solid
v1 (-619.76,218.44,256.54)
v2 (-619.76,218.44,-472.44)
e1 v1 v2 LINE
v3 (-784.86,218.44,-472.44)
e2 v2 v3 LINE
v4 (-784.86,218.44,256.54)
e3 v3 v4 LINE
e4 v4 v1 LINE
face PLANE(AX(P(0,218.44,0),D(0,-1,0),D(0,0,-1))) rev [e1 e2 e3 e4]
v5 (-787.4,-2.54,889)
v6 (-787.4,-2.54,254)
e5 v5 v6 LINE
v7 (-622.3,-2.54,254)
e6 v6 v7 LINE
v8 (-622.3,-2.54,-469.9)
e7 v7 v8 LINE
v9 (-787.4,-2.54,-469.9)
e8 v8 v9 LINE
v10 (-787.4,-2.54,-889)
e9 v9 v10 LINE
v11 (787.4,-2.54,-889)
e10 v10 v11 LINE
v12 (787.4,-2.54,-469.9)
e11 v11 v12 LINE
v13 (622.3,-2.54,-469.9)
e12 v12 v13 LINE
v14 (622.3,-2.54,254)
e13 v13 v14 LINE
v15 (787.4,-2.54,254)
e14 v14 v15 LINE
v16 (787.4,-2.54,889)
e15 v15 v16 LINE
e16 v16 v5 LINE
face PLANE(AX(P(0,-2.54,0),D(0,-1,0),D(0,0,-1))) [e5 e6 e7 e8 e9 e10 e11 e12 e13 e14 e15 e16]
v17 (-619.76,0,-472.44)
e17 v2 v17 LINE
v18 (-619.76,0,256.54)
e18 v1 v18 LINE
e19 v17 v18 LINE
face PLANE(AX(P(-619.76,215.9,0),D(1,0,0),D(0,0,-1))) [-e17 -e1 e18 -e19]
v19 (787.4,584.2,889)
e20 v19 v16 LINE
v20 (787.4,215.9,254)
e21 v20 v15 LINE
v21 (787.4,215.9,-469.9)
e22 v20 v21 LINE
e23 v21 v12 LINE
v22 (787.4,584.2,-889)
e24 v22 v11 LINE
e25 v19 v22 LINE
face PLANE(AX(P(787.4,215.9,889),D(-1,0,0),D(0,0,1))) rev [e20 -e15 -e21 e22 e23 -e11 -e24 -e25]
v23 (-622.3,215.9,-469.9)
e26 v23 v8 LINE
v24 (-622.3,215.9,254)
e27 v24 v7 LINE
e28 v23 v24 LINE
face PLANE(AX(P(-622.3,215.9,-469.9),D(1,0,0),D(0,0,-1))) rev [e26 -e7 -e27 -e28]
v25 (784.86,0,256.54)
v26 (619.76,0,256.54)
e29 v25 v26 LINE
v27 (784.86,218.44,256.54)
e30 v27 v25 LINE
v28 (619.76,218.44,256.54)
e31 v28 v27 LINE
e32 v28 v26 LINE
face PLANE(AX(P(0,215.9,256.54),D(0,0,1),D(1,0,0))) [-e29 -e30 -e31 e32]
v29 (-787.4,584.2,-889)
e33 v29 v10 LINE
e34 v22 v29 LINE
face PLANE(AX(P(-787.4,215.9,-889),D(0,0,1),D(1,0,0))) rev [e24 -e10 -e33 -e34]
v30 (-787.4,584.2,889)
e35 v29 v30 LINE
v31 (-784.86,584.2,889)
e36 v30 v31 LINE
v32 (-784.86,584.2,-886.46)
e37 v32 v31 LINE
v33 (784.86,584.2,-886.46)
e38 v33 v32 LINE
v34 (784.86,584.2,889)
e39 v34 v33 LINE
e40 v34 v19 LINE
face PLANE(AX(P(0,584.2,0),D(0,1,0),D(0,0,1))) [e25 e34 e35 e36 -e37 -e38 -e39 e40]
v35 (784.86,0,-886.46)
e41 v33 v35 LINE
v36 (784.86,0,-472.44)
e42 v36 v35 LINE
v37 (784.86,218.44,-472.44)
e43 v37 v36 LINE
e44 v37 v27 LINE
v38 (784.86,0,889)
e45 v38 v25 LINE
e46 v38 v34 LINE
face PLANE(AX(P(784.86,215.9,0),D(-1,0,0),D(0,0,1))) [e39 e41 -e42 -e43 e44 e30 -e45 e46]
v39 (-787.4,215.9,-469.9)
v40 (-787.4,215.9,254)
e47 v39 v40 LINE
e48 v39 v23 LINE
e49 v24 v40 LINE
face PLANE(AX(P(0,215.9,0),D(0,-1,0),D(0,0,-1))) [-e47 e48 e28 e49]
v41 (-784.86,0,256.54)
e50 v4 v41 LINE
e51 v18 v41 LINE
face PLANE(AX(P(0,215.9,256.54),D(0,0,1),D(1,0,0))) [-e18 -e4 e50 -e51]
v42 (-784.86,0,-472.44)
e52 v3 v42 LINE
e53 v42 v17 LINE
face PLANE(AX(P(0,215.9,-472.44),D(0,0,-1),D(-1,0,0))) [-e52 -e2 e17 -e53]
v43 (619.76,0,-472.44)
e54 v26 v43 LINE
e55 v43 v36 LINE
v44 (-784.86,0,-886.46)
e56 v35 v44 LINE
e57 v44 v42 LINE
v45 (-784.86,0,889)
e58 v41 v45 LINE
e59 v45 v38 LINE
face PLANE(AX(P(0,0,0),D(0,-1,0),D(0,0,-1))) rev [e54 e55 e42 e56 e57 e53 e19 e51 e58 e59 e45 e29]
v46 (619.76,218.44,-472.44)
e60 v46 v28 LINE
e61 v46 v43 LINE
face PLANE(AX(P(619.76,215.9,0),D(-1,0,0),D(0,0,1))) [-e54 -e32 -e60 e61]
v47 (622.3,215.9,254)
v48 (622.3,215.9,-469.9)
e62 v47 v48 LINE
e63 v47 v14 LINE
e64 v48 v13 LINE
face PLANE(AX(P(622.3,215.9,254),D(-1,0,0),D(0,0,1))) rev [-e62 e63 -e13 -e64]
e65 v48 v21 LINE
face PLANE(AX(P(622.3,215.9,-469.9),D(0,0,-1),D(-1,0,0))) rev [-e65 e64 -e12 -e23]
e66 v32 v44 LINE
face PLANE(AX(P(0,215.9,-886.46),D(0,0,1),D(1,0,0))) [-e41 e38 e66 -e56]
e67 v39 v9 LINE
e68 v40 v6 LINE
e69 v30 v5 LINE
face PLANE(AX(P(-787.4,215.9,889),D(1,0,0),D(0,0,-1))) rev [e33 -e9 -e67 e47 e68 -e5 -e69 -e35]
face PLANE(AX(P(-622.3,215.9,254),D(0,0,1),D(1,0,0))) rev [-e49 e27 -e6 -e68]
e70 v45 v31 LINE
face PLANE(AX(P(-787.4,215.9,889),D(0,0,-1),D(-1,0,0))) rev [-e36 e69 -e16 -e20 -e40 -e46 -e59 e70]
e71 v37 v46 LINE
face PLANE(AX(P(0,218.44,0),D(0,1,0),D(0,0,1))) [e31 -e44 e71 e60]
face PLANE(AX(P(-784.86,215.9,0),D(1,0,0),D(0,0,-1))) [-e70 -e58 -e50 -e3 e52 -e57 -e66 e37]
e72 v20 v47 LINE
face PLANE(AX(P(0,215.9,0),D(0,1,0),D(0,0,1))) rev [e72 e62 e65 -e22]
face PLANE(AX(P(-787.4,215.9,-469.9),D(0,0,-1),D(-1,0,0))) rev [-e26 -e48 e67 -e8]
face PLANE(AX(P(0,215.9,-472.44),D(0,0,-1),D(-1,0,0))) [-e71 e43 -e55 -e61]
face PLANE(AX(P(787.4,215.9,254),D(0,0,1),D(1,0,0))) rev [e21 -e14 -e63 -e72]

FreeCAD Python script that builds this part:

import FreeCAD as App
import Part
import Sketcher
Q = App.Units.Quantity


def add_polygon(sketch, points):
    """Adds a closed chain of lines whose ends are joined by coincident constraints."""
    first, n = sketch.GeometryCount, len(points)
    for a, b in zip(points, points[1:] + points[:1]):
        sketch.addGeometry(Part.LineSegment(App.Vector(*a, 0), App.Vector(*b, 0)), False)
    for i in range(n):
        sketch.addConstraint(Sketcher.Constraint("Coincident", first + i, 2, first + (i + 1) % n, 1))

doc = App.newDocument("Part")
body = doc.addObject("PartDesign::Body", "Body")

# Sketch on XZ plane
sketch1 = body.newObject("Sketcher::SketchObject", "Sketch")
sketch1.AttachmentSupport = (doc.getObject("XZ_Plane"), [""])
sketch1.MapMode = "FlatFace"
add_polygon(sketch1, [(787, -889), (-787, -889), (-787, -470), (-622, -470), (-622, 254), (-787, 254), (-787, 889), (787, 889), (787, 254), (622, 254), (622, -470), (787, -470)])  # lines 0-11
add_polygon(sketch1, [(-785, -886), (785, -886), (785, -472), (620, -472), (620, 257), (785, 257), (785, 886), (-785, 886), (-785, 257), (-620, 257), (-620, -472), (-785, -472)])  # lines 12-23
sketch1.addConstraint([
    Sketcher.Constraint("Horizontal", 0),
    Sketcher.Constraint("Vertical", 1),
    Sketcher.Constraint("Horizontal", 2),
    Sketcher.Constraint("Vertical", 3),
    Sketcher.Constraint("Horizontal", 4),
    Sketcher.Constraint("Vertical", 5),
    Sketcher.Constraint("Horizontal", 6),
    Sketcher.Constraint("Vertical", 7),
    Sketcher.Constraint("Horizontal", 8),
    Sketcher.Constraint("Vertical", 9),
    Sketcher.Constraint("Horizontal", 10),
    Sketcher.Constraint("Vertical", 11),
    Sketcher.Constraint("Horizontal", 12),
    Sketcher.Constraint("Vertical", 13),
    Sketcher.Constraint("Horizontal", 14),
    Sketcher.Constraint("Vertical", 15),
    Sketcher.Constraint("Horizontal", 16),
    Sketcher.Constraint("Vertical", 17),
    Sketcher.Constraint("Horizontal", 18),
    Sketcher.Constraint("Vertical", 19),
    Sketcher.Constraint("Horizontal", 20),
    Sketcher.Constraint("Vertical", 21),
    Sketcher.Constraint("Horizontal", 22),
    Sketcher.Constraint("Vertical", 23),
    Sketcher.Constraint("Symmetric", 0, 2, 6, 2, -1, 1),
    Sketcher.Constraint("Symmetric", 12, 2, 18, 2, -1, 1),
    Sketcher.Constraint("Symmetric", 4, 2, 7, 2, -2),
    Sketcher.Constraint("Symmetric", 2, 2, 9, 2, -2),
    Sketcher.Constraint("Symmetric", 16, 2, 19, 2, -2),
    Sketcher.Constraint("Symmetric", 14, 2, 21, 2, -2),
    Sketcher.Constraint("Vertical", 7, 2, 10, 2),
    Sketcher.Constraint("Vertical", 19, 2, 22, 2),
    Sketcher.Constraint("Equal", 10, 14),
    Sketcher.Constraint("DistanceX", 0, 2, 0, 1, Q("62 in")),
    Sketcher.Constraint("DistanceY", 5, 1, 5, 2, Q("25 in")),
    Sketcher.Constraint("DistanceX", 2, 1, 2, 2, Q("6.5 in")),
    Sketcher.Constraint("DistanceX", 12, 1, 12, 2, Q("61.8 in")),
    Sketcher.Constraint("DistanceY", 1, 1, 1, 2, Q("16.5 in")),
    Sketcher.Constraint("DistanceY", 3, 1, 3, 2, Q("28.5 in")),
    Sketcher.Constraint("DistanceY", 13, 1, 13, 2, Q("16.3 in")),
    Sketcher.Constraint("DistanceY", 15, 1, 15, 2, Q("28.7 in")),
    Sketcher.Constraint("DistanceY", 17, 1, 17, 2, Q("24.8 in")),
])
pad1 = body.newObject("PartDesign::Pad", "Pad")
pad1.Profile = sketch1
pad1.Length = Q("8.5 in")
pad1.Reversed = True

# Sketch on XZ plane
sketch2 = body.newObject("Sketcher::SketchObject", "Sketch001")
sketch2.AttachmentSupport = (doc.getObject("XZ_Plane"), [""])
sketch2.MapMode = "FlatFace"
sketch2.AttachmentOffset = App.Placement(App.Vector(0, 0, -8.5 * 25.4), App.Rotation())
add_polygon(sketch2, [(-787, -472), (-787, 257), (-620, 257), (-620, -472)])  # lines 0-3
add_polygon(sketch2, [(620, -472), (620, 257), (787, 257), (787, -472)])  # lines 4-7
sketch2.addConstraint([
    Sketcher.Constraint("Vertical", 0),
    Sketcher.Constraint("Horizontal", 1),
    Sketcher.Constraint("Vertical", 2),
    Sketcher.Constraint("Horizontal", 3),
    Sketcher.Constraint("Vertical", 4),
    Sketcher.Constraint("Horizontal", 5),
    Sketcher.Constraint("Vertical", 6),
    Sketcher.Constraint("Horizontal", 7),
    Sketcher.Constraint("Symmetric", 1, 2, 4, 2, -2),
    Sketcher.Constraint("Symmetric", 3, 2, 6, 2, -2),
    Sketcher.Constraint("DistanceX", 1, 1, 1, 2, Q("6.6 in")),
    Sketcher.Constraint("DistanceY", 0, 1, 0, 2, Q("28.7 in")),
    Sketcher.Constraint("DistanceX", 0, 2, -1, 1, Q("31 in")),
    Sketcher.Constraint("DistanceY", -1, 1, 0, 2, Q("10.1 in")),
])
pad2 = body.newObject("PartDesign::Pad", "Pad001")
pad2.Profile = sketch2
pad2.Length = Q("0.1 in")
pad2.Reversed = True

# Sketch on XZ plane
sketch3 = body.newObject("Sketcher::SketchObject", "Sketch002")
sketch3.AttachmentSupport = (doc.getObject("XZ_Plane"), [""])
sketch3.MapMode = "FlatFace"
sketch3.AttachmentOffset = App.Placement(App.Vector(0, 0, -8.5 * 25.4), App.Rotation())
add_polygon(sketch3, [(-787, -889), (-787, 889), (787, 889), (787, -889)])  # lines 0-3
add_polygon(sketch3, [(785, 886), (-785, 886), (-785, -886), (785, -886)])  # lines 4-7
sketch3.addConstraint([
    Sketcher.Constraint("Vertical", 0),
    Sketcher.Constraint("Horizontal", 1),
    Sketcher.Constraint("Vertical", 2),
    Sketcher.Constraint("Horizontal", 3),
    Sketcher.Constraint("Horizontal", 4),
    Sketcher.Constraint("Vertical", 5),
    Sketcher.Constraint("Horizontal", 6),
    Sketcher.Constraint("Vertical", 7),
    Sketcher.Constraint("Symmetric", 0, 2, 2, 2, -1, 1),
    Sketcher.Constraint("Symmetric", 4, 2, 6, 2, -1, 1),
    Sketcher.Constraint("DistanceX", 1, 1, 1, 2, Q("62 in")),
    Sketcher.Constraint("DistanceY", 0, 1, 0, 2, Q("70 in")),
    Sketcher.Constraint("DistanceX", 4, 2, 4, 1, Q("61.8 in")),
    Sketcher.Constraint("DistanceY", 5, 2, 5, 1, Q("69.8 in")),
])
pad3 = body.newObject("PartDesign::Pad", "Pad002")
pad3.Profile = sketch3
pad3.Length = Q("14.5 in")
pad3.Reversed = True

# Sketch on XZ plane
sketch4 = body.newObject("Sketcher::SketchObject", "Sketch003")
sketch4.AttachmentSupport = (doc.getObject("XZ_Plane"), [""])
sketch4.MapMode = "FlatFace"
add_polygon(sketch4, [(787, -889), (787, -470), (622, -470), (622, 254), (787, 254), (787, 889), (-787, 889), (-787, 254), (-622, 254), (-622, -470), (-787, -470), (-787, -889)])  # lines 0-11
sketch4.addConstraint([
    Sketcher.Constraint("Vertical", 0),
    Sketcher.Constraint("Horizontal", 1),
    Sketcher.Constraint("Vertical", 2),
    Sketcher.Constraint("Horizontal", 3),
    Sketcher.Constraint("Vertical", 4),
    Sketcher.Constraint("Horizontal", 5),
    Sketcher.Constraint("Vertical", 6),
    Sketcher.Constraint("Horizontal", 7),
    Sketcher.Constraint("Vertical", 8),
    Sketcher.Constraint("Horizontal", 9),
    Sketcher.Constraint("Vertical", 10),
    Sketcher.Constraint("Horizontal", 11),
    Sketcher.Constraint("Symmetric", 4, 2, 10, 2, -1, 1),
    Sketcher.Constraint("Symmetric", 3, 2, 6, 2, -2),
    Sketcher.Constraint("Symmetric", 1, 2, 8, 2, -2),
    Sketcher.Constraint("Vertical", 0, 2, 3, 2),
    Sketcher.Constraint("DistanceX", 5, 2, 5, 1, Q("62 in")),
    Sketcher.Constraint("DistanceY", 4, 1, 4, 2, Q("25 in")),
    Sketcher.Constraint("DistanceX", 1, 2, 1, 1, Q("6.5 in")),
    Sketcher.Constraint("DistanceY", 0, 1, 0, 2, Q("16.5 in")),
    Sketcher.Constraint("DistanceY", 2, 1, 2, 2, Q("28.5 in")),
])
pad4 = body.newObject("PartDesign::Pad", "Pad003")
pad4.Profile = sketch4
pad4.Length = Q("0.1 in")

# Sketch on XZ plane
sketch5 = body.newObject("Sketcher::SketchObject", "Sketch004")
sketch5.AttachmentSupport = (doc.getObject("XZ_Plane"), [""])
sketch5.MapMode = "FlatFace"
sketch5.AttachmentOffset = App.Placement(App.Vector(0, 0, -23 * 25.4), App.Rotation())
add_polygon(sketch5, [(-784.9, 886.5), (-784.9, 889), (784.9, 889), (784.9, 886.5)])  # lines 0-3
sketch5.addConstraint([
    Sketcher.Constraint("Vertical", 0),
    Sketcher.Constraint("Horizontal", 1),
    Sketcher.Constraint("Vertical", 2),
    Sketcher.Constraint("Horizontal", 3),
    Sketcher.Constraint("DistanceX", 1, 1, 1, 2, Q("61.8 in")),
    Sketcher.Constraint("DistanceY", 0, 1, 0, 2, Q("0.1 in")),
    Sketcher.Constraint("DistanceY", -1, 1, 0, 2, Q("35 in")),
    Sketcher.Constraint("DistanceX", 0, 2, -1, 1, Q("30.9 in")),
])
pocket1 = body.newObject("PartDesign::Pocket", "Pocket")
pocket1.Profile = sketch5
pocket1.Length = Q("23 in")
pocket1.Reversed = True

doc.recompute()
